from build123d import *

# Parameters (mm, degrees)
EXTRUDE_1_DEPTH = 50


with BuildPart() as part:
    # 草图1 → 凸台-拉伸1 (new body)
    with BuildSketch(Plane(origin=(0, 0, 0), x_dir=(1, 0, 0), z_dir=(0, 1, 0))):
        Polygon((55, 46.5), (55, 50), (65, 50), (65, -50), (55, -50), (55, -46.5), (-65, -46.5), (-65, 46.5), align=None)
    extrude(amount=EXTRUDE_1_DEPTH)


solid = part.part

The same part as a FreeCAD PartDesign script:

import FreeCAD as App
import Part
import Sketcher


def add_polygon(sketch, points):
    """Adds a closed chain of lines whose ends are joined by coincident constraints."""
    first, n = sketch.GeometryCount, len(points)
    for a, b in zip(points, points[1:] + points[:1]):
        sketch.addGeometry(Part.LineSegment(App.Vector(*a, 0), App.Vector(*b, 0)), False)
    for i in range(n):
        sketch.addConstraint(Sketcher.Constraint("Coincident", first + i, 2, first + (i + 1) % n, 1))

doc = App.newDocument("Part")
body = doc.addObject("PartDesign::Body", "Body")

sketch1 = doc.addObject("Sketcher::SketchObject", "Sketch")
body.addObject(sketch1)
sketch1.AttachmentSupport = (doc.XZ_Plane, [""])
sketch1.MapMode = "FlatFace"
add_polygon(sketch1, [(55, -50), (55, -46.5), (-65, -46.5), (-65, 46.5), (55, 46.5), (55, 50), (65, 50), (65, -50)])
sketch1.addConstraint(Sketcher.Constraint("Vertical", 0))
sketch1.addConstraint(Sketcher.Constraint("Horizontal", 1))
sketch1.addConstraint(Sketcher.Constraint("Vertical", 2))
sketch1.addConstraint(Sketcher.Constraint("Horizontal", 3))
sketch1.addConstraint(Sketcher.Constraint("Vertical", 4))
sketch1.addConstraint(Sketcher.Constraint("Horizontal", 5))
sketch1.addConstraint(Sketcher.Constraint("Vertical", 6))
sketch1.addConstraint(Sketcher.Constraint("Horizontal", 7))
sketch1.addConstraint(Sketcher.Constraint("Symmetric", 0, 2, 3, 2, -1))
sketch1.addConstraint(Sketcher.Constraint("Equal", 0, 4))
sketch1.addConstraint(Sketcher.Constraint("DistanceX", 1, 2, 1, 1, 120.0))
sketch1.addConstraint(Sketcher.Constraint("DistanceX", 5, 1, 5, 2, 10.0))
sketch1.addConstraint(Sketcher.Constraint("DistanceY", 2, 1, 2, 2, 93.0))
sketch1.addConstraint(Sketcher.Constraint("DistanceY", 6, 2, 6, 1, 100.0))
sketch1.addConstraint(Sketcher.Constraint("DistanceX", -1, 1, 0, 2, 55.0))
pad1 = doc.addObject("PartDesign::Pad", "Pad")
body.addObject(pad1)
pad1.Profile = sketch1
pad1.Length = 50
pad1.Reversed = True

doc.recompute()
